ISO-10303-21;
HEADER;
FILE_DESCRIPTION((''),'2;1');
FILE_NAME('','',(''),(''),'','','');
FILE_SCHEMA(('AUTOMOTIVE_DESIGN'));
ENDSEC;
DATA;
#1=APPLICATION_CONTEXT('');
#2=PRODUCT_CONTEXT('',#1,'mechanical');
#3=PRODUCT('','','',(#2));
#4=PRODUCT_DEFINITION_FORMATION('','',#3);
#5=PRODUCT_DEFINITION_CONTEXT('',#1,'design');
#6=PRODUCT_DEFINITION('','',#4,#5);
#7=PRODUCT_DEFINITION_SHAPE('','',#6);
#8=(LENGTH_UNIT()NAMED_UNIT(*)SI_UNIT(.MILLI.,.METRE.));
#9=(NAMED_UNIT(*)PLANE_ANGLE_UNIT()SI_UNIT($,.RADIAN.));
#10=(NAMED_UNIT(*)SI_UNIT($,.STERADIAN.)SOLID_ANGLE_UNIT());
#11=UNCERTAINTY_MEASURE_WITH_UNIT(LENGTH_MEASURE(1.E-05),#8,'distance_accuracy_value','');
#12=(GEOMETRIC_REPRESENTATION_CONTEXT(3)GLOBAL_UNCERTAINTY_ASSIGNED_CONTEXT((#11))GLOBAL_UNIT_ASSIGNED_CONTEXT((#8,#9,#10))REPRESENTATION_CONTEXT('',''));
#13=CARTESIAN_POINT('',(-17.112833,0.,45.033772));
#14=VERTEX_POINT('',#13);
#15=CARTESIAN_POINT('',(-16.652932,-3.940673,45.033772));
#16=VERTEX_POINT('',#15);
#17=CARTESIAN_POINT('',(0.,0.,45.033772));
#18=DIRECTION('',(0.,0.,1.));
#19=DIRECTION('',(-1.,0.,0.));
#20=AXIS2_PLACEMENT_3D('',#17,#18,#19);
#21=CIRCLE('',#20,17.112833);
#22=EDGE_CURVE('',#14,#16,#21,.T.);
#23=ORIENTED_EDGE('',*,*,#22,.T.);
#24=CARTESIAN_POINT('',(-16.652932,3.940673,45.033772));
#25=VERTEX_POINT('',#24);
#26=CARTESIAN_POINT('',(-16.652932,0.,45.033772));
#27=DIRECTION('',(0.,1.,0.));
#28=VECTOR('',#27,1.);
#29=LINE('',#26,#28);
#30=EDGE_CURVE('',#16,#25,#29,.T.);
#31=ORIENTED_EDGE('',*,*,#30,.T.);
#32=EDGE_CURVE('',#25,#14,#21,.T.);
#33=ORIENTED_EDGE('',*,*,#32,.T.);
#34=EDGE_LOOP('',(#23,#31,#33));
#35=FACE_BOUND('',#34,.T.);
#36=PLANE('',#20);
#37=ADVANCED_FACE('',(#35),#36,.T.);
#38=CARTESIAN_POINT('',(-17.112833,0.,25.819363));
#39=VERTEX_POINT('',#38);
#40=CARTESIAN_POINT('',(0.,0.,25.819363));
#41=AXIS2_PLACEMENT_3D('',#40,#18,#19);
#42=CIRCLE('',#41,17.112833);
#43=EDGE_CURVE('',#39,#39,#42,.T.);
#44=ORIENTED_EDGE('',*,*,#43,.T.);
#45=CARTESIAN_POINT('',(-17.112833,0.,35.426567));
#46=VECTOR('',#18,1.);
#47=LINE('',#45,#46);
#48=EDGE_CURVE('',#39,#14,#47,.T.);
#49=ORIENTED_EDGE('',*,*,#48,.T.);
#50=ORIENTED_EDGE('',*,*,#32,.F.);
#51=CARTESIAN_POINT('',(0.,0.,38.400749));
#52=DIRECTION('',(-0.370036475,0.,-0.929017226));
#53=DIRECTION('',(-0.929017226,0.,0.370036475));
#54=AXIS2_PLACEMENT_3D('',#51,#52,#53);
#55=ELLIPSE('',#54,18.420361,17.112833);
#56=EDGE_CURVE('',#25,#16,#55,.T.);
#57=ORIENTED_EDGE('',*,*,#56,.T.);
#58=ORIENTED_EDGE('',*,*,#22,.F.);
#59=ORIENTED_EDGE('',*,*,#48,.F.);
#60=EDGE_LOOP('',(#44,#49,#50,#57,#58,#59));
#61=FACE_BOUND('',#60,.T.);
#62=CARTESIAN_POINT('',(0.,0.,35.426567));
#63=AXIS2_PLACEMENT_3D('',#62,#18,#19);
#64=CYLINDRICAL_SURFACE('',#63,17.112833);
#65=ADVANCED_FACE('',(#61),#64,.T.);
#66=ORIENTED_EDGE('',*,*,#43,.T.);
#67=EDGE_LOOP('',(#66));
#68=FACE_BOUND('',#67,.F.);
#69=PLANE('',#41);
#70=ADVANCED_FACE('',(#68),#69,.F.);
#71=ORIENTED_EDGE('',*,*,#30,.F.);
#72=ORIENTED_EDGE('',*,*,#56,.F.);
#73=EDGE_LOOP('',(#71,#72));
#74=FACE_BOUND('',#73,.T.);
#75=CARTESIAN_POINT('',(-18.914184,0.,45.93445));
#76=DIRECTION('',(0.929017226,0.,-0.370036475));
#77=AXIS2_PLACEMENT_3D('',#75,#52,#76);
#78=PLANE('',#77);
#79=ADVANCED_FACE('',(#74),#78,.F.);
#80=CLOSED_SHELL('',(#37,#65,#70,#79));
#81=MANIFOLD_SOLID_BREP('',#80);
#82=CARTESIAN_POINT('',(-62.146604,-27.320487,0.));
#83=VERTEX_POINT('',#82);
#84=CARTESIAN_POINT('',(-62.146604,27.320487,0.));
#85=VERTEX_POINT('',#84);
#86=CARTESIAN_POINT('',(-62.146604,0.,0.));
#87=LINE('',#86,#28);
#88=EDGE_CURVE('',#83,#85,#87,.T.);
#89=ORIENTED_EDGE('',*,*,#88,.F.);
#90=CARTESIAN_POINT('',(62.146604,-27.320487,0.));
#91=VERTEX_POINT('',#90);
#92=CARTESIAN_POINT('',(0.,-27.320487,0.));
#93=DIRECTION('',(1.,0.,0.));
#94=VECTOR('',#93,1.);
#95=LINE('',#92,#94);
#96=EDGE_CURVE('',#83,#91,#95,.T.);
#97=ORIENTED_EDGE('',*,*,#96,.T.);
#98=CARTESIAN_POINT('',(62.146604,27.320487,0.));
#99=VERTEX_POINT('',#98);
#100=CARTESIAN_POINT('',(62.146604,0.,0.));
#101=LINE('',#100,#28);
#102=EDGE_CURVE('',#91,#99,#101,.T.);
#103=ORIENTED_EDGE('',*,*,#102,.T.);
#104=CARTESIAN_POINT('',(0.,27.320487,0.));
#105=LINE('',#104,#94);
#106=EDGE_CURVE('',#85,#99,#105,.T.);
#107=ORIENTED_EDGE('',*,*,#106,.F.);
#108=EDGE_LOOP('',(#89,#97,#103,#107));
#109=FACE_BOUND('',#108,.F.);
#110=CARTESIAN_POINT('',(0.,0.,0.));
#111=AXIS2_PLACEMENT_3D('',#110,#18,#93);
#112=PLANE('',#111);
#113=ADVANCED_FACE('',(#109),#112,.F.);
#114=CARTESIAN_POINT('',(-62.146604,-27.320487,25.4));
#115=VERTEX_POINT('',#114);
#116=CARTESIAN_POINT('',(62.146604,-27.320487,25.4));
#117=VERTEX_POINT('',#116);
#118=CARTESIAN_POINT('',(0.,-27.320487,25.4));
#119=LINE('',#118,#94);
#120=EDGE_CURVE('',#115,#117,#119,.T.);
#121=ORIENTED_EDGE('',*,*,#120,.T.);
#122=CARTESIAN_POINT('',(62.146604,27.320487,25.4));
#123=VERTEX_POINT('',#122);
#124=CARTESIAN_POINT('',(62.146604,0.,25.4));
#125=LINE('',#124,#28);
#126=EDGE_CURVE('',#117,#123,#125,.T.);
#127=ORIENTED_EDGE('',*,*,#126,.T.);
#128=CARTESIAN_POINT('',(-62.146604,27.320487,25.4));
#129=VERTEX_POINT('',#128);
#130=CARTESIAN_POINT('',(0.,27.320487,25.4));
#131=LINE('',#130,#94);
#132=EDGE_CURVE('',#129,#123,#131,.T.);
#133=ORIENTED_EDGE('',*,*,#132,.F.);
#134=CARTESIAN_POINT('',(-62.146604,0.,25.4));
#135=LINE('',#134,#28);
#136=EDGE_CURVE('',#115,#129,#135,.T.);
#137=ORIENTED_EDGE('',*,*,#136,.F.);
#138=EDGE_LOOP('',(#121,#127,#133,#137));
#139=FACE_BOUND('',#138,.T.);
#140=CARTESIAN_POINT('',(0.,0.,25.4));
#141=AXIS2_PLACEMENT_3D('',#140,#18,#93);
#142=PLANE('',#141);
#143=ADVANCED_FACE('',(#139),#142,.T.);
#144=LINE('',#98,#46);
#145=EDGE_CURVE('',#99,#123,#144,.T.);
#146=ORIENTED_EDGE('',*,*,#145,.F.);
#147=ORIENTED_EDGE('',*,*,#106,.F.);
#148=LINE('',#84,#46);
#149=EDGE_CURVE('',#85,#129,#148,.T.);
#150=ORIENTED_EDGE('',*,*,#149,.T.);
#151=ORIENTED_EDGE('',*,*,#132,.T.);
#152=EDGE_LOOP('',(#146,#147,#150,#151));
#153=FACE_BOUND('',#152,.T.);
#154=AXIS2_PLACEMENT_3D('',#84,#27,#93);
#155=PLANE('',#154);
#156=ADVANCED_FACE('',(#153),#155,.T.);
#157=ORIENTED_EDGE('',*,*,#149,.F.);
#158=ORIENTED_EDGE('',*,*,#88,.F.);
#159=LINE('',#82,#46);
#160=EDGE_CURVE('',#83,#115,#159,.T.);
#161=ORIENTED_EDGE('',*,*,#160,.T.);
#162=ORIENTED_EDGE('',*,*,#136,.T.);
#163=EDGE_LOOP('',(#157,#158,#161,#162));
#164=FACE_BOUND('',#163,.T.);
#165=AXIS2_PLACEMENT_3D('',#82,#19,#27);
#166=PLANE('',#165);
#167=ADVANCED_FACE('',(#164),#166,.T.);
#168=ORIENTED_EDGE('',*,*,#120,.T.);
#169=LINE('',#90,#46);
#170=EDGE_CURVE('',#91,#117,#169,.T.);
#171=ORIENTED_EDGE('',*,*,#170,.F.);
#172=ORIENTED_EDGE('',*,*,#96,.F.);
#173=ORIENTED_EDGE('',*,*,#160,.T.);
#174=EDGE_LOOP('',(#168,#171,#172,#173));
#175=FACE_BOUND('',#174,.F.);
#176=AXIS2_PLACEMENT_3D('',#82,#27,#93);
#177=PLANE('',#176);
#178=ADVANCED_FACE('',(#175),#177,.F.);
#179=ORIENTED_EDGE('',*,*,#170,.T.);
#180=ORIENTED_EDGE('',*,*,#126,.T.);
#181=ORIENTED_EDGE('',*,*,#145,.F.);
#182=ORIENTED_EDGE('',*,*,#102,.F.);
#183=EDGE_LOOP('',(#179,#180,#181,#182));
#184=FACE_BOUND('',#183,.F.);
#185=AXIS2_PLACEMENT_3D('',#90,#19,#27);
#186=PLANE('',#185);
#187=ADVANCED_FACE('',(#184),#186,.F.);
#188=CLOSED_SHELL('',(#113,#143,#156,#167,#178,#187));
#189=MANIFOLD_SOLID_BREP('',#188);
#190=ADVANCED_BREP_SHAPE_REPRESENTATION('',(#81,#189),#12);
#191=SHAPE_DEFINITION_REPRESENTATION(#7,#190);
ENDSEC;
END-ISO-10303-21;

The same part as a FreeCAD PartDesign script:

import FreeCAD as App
import Part
import Sketcher
from FreeCAD import Vector
Q = App.Units.Quantity


def add_polygon(sketch, points):
    """Adds a closed chain of lines whose ends are joined by coincident constraints."""
    first, n = sketch.GeometryCount, len(points)
    for a, b in zip(points, points[1:] + points[:1]):
        sketch.addGeometry(Part.LineSegment(App.Vector(*a, 0), App.Vector(*b, 0)), False)
    for i in range(n):
        sketch.addConstraint(Sketcher.Constraint("Coincident", first + i, 2, first + (i + 1) % n, 1))

doc = App.newDocument("Part")
body = doc.addObject("PartDesign::Body", "Body")

# Sketch on XY plane
sketch1 = doc.addObject("Sketcher::SketchObject", "Sketch")
body.addObject(sketch1)
sketch1.AttachmentSupport = (doc.XY_Plane, [""])
sketch1.MapMode = "FlatFace"
add_polygon(sketch1, [(-62, 27), (-62, -27), (62, -27), (62, 27)])  # lines 0-3
sketch1.addConstraint(Sketcher.Constraint("Vertical", 0))
sketch1.addConstraint(Sketcher.Constraint("Horizontal", 1))
sketch1.addConstraint(Sketcher.Constraint("Vertical", 2))
sketch1.addConstraint(Sketcher.Constraint("Horizontal", 3))
sketch1.addConstraint(Sketcher.Constraint("Symmetric", 0, 2, 2, 2, -1, 1))
sketch1.addConstraint(Sketcher.Constraint("DistanceX", 1, 1, 1, 2, Q("124.293208 mm")))
sketch1.addConstraint(Sketcher.Constraint("DistanceY", 0, 2, 0, 1, Q("54.640975 mm")))
pad1 = doc.addObject("PartDesign::Pad", "Pad")
body.addObject(pad1)
pad1.Profile = sketch1
pad1.Length = Q("1 in")
body2 = doc.addObject("PartDesign::Body", "Body001")

# Sketch on XZ plane
sketch2 = doc.addObject("Sketcher::SketchObject", "Sketch001")
body2.addObject(sketch2)
sketch2.AttachmentSupport = (doc.getObject("XZ_Plane001"), [""])
sketch2.MapMode = "FlatFace"
add_polygon(sketch2, [(-17, 45), (-17, 26), (0, 26), (0, 45)])  # lines 0-3
sketch2.addConstraint(Sketcher.Constraint("Vertical", 0))
sketch2.addConstraint(Sketcher.Constraint("Horizontal", 1))
sketch2.addConstraint(Sketcher.Constraint("Vertical", 2))
sketch2.addConstraint(Sketcher.Constraint("Horizontal", 3))
sketch2.addConstraint(Sketcher.Constraint("PointOnObject", 1, 2, -2))
sketch2.addConstraint(Sketcher.Constraint("DistanceY", 0, 2, 0, 1, Q("19.214408 mm")))
sketch2.addConstraint(Sketcher.Constraint("DistanceX", 1, 1, 1, 2, Q("17.112833 mm")))
sketch2.addConstraint(Sketcher.Constraint("DistanceY", -1, 1, 2, 2, Q("45.033772 mm")))
revolution = doc.addObject("PartDesign::Revolution", "Revolution")
body2.addObject(revolution)
revolution.Profile = sketch2
revolution.ReferenceAxis = (sketch2, ["V_Axis"])
revolution.Angle = 360

# Sketch on XZ plane
sketch3 = doc.addObject("Sketcher::SketchObject", "Sketch002")
body2.addObject(sketch3)
sketch3.AttachmentSupport = (doc.getObject("XZ_Plane001"), [""])
sketch3.MapMode = "FlatFace"
add_polygon(sketch3, [(-6, 78), (-19, 46), (24, 29), (37, 61)])  # lines 0-3
sketch3.addGeometry(Part.LineSegment(Vector(-6, 78, 0), Vector(-19, 46, 0)), True)  # axis
sketch3.addConstraint(Sketcher.Constraint("Coincident", 4, 1, 3, 2))
sketch3.addConstraint(Sketcher.Constraint("Coincident", 4, 2, 0, 2))
sketch3.addConstraint(Sketcher.Constraint("Perpendicular", 0, 1))
sketch3.addConstraint(Sketcher.Constraint("Perpendicular", 1, 2))
sketch3.addConstraint(Sketcher.Constraint("Perpendicular", 2, 3))
sketch3.addConstraint(Sketcher.Constraint("DistanceY", -1, 1, 0, 2, Q("45.93445 mm")))
sketch3.addConstraint(Sketcher.Constraint("DistanceY", -1, 1, 2, 2, Q("60.955518 mm")))
sketch3.addConstraint(Sketcher.Constraint("DistanceX", 3, 2, -1, 1, Q("6.151519 mm")))
sketch3.addConstraint(Sketcher.Constraint("DistanceY", -1, 1, 3, 2, Q("77.976521 mm")))
sketch3.addConstraint(Sketcher.Constraint("DistanceX", 0, 2, 2, 2, Q("55.495761 mm")))
groove = doc.addObject("PartDesign::Groove", "Groove")
body2.addObject(groove)
groove.Profile = sketch3
groove.ReferenceAxis = (sketch3, ["Axis0"])
groove.Angle = 360

doc.recompute()
